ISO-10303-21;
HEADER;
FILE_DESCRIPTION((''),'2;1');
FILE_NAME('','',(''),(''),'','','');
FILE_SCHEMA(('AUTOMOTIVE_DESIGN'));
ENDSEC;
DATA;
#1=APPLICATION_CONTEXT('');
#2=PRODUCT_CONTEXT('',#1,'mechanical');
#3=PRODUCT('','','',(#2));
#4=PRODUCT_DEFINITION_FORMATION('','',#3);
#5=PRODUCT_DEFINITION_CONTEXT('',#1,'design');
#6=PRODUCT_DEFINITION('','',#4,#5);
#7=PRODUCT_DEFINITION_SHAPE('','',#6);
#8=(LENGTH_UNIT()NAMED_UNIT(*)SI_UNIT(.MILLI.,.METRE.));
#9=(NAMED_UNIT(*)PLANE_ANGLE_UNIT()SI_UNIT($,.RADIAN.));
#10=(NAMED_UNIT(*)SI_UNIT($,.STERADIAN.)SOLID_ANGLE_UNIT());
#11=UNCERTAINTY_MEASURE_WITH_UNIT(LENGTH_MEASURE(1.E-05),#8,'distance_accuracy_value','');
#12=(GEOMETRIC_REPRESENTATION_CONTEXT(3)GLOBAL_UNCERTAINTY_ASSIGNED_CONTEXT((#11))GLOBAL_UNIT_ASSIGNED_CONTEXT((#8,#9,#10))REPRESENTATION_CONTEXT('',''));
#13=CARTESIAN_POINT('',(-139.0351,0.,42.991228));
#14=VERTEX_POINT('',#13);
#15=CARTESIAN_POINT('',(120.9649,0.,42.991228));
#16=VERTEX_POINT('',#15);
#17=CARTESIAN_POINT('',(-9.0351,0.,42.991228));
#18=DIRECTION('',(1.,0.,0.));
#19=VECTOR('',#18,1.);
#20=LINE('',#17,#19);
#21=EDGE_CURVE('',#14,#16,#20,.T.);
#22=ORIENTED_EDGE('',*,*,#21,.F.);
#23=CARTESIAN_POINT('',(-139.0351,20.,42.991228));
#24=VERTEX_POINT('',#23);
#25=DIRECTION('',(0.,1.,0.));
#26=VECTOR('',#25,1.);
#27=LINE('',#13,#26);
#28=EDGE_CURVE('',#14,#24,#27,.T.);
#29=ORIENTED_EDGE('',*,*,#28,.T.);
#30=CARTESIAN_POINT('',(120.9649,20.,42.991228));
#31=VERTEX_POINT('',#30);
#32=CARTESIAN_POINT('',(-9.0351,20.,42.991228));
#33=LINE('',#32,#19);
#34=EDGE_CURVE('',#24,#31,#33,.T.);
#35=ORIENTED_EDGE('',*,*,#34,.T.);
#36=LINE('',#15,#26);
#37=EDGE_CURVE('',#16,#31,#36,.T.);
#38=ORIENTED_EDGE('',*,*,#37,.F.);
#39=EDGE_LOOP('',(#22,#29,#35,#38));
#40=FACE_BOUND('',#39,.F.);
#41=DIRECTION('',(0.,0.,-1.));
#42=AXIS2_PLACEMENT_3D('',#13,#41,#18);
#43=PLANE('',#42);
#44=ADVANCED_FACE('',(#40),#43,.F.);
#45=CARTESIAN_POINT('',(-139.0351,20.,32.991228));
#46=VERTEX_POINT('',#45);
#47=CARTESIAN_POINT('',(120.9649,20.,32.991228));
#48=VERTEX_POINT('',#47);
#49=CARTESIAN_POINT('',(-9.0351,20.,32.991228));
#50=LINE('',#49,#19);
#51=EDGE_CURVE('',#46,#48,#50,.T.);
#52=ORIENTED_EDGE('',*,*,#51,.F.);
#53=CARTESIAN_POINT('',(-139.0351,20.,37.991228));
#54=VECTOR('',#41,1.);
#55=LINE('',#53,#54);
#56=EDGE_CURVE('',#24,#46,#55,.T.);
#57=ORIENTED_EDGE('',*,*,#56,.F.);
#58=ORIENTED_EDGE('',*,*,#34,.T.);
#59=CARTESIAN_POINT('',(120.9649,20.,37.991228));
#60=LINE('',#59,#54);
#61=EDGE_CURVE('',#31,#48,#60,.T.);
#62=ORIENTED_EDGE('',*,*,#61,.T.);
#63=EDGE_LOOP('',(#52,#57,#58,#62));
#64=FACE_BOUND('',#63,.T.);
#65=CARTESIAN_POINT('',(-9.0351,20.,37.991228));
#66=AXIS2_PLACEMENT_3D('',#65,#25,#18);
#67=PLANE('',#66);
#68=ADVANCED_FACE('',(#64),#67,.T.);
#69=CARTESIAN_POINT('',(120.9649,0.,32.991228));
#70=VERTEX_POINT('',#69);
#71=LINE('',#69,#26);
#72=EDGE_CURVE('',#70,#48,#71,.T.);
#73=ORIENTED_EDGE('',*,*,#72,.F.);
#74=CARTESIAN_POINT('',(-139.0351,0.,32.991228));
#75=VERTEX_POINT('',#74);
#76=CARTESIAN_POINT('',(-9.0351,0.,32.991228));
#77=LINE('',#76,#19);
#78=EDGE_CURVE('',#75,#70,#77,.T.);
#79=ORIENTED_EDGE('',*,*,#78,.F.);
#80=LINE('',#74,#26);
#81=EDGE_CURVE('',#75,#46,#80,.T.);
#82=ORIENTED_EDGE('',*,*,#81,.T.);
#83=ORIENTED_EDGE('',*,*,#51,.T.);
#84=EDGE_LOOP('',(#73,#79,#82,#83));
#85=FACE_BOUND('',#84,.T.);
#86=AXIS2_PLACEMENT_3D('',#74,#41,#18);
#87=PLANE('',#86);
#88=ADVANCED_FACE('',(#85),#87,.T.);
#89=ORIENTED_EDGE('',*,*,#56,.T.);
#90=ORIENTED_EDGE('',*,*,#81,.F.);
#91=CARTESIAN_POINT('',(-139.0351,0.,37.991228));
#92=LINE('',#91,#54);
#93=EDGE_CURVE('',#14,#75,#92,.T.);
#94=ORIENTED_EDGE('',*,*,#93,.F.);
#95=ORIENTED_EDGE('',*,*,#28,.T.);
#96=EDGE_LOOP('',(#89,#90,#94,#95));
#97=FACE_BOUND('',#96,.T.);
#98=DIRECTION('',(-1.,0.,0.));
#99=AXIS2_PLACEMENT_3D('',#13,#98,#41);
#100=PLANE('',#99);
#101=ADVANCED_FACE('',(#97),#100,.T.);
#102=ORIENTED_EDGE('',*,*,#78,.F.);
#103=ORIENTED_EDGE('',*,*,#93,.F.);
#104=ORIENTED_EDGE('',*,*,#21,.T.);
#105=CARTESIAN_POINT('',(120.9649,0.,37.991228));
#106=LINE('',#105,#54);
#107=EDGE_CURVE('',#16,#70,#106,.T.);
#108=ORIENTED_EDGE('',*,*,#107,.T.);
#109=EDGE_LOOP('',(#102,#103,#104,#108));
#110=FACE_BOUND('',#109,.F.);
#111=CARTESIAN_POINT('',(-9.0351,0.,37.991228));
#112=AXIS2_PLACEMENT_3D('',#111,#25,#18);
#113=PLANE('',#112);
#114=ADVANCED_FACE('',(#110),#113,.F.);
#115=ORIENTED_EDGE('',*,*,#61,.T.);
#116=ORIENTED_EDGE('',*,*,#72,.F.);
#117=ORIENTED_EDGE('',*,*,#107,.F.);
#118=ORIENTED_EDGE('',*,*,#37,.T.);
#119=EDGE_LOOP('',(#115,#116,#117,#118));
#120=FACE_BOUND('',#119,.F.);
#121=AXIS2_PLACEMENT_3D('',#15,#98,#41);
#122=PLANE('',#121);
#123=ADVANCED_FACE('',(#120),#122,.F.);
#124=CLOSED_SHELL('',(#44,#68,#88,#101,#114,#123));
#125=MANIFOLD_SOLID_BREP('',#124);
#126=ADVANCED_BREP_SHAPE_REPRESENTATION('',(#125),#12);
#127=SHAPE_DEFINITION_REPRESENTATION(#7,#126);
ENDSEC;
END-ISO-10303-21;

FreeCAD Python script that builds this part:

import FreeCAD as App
import Part
import Sketcher

V = App.Vector

doc = App.newDocument("Part")
body = doc.addObject("PartDesign::Body", "Body")

# Sketch on XZ plane
sketch1 = body.newObject("Sketcher::SketchObject", "Sketch")
sketch1.AttachmentSupport = (doc.getObject("XZ_Plane"), [""])
sketch1.MapMode = "FlatFace"
sketch1.addGeometry(Part.LineSegment(V(-139.0351, 32.991228, 0), V(-139.0351, 42.991228, 0)), False)
sketch1.addGeometry(Part.LineSegment(V(-139.0351, 42.991228, 0), V(120.9649, 42.991228, 0)), False)
sketch1.addGeometry(Part.LineSegment(V(120.9649, 42.991228, 0), V(120.9649, 32.991228, 0)), False)
sketch1.addGeometry(Part.LineSegment(V(120.9649, 32.991228, 0), V(-139.0351, 32.991228, 0)), False)
sketch1.addConstraint(Sketcher.Constraint("Coincident", 0, 2, 1, 1))
sketch1.addConstraint(Sketcher.Constraint("Coincident", 1, 2, 2, 1))
sketch1.addConstraint(Sketcher.Constraint("Coincident", 2, 2, 3, 1))
sketch1.addConstraint(Sketcher.Constraint("Coincident", 3, 2, 0, 1))
sketch1.addConstraint(Sketcher.Constraint("Vertical", 0))
sketch1.addConstraint(Sketcher.Constraint("Horizontal", 1))
sketch1.addConstraint(Sketcher.Constraint("Vertical", 2))
sketch1.addConstraint(Sketcher.Constraint("Horizontal", 3))
sketch1.addConstraint(Sketcher.Constraint("DistanceX", 1, 1, 1, 2, 260.0))
sketch1.addConstraint(Sketcher.Constraint("DistanceY", 0, 1, 0, 2, 10.0))
sketch1.addConstraint(Sketcher.Constraint("DistanceX", 0, 2, -1, 1, 139.0351))
sketch1.addConstraint(Sketcher.Constraint("DistanceY", -1, 1, 0, 2, 42.991228))
pad1 = body.newObject("PartDesign::Pad", "Pad")
pad1.Profile = sketch1
pad1.Length = 20
pad1.Reversed = True

doc.recompute()
